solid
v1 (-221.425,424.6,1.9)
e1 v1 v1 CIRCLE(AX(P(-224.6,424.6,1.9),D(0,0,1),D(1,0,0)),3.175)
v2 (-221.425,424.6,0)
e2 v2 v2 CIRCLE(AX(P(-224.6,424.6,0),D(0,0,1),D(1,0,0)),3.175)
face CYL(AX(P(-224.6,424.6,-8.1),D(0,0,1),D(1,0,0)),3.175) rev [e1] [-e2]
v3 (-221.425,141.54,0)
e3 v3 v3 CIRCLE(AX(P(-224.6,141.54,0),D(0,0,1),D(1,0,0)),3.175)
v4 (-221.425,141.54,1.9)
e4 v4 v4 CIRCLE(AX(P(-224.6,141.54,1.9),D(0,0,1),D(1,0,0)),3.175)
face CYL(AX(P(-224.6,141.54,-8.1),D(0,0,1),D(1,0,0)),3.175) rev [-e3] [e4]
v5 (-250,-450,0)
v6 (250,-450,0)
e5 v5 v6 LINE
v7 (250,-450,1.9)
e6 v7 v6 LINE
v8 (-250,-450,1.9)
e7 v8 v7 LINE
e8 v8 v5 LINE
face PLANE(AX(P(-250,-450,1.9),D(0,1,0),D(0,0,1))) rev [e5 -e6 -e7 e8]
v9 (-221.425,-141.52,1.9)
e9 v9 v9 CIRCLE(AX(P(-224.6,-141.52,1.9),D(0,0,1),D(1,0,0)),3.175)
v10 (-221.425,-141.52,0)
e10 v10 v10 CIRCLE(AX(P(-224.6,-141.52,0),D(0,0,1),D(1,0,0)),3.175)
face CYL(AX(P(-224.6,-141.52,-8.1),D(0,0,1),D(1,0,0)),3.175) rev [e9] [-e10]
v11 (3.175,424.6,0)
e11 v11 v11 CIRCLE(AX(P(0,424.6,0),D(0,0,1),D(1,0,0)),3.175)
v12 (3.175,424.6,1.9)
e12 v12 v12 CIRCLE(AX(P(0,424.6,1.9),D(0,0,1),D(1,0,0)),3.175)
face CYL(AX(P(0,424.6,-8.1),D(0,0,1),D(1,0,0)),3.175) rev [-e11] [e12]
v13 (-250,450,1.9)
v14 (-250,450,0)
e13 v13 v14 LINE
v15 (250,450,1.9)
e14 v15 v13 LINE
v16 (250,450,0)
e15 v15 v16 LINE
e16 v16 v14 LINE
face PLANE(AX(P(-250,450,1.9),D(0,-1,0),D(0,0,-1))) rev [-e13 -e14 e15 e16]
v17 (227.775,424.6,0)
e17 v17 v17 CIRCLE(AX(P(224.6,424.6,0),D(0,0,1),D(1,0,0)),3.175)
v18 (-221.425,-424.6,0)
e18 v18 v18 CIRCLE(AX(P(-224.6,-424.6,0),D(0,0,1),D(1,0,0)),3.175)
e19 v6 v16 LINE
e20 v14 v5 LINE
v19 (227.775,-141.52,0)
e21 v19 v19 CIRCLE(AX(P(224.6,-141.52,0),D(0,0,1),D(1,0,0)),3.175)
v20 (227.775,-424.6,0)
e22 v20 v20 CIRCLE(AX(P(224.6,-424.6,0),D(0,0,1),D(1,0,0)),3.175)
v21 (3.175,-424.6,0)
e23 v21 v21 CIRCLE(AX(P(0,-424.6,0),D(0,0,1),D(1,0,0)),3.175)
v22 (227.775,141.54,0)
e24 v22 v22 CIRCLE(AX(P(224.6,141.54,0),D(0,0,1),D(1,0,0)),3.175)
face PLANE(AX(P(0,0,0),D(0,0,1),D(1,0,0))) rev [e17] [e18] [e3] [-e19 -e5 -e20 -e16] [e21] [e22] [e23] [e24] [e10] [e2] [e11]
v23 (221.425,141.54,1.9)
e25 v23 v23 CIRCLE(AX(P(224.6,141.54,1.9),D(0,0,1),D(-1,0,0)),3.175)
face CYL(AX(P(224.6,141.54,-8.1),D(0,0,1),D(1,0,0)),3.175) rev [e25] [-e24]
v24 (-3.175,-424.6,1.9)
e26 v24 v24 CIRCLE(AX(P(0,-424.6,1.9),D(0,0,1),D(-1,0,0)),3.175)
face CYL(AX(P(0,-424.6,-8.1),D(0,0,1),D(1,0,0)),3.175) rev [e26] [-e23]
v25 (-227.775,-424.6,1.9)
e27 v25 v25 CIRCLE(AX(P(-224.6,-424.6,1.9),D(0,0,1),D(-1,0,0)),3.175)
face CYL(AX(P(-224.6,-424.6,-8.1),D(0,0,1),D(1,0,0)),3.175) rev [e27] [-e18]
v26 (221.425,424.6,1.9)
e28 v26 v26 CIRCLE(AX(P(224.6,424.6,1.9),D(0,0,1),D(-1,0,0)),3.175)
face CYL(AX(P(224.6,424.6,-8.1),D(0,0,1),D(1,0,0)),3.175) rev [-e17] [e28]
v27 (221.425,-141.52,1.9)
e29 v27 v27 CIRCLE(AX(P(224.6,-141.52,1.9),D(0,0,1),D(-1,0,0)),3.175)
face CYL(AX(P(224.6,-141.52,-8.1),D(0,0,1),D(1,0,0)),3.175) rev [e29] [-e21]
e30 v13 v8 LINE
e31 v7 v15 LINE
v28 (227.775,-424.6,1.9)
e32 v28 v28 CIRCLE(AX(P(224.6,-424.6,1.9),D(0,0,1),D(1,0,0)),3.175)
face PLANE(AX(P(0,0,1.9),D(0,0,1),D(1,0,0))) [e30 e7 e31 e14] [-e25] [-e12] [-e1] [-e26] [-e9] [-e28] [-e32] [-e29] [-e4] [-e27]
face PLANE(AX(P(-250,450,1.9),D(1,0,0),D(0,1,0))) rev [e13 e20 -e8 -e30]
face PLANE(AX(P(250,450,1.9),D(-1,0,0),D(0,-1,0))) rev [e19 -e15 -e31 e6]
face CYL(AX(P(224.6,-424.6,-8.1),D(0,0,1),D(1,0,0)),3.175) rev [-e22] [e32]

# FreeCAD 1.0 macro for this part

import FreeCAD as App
import Part
import Sketcher
from FreeCAD import Vector


def add_polygon(sketch, points):
    """Adds a closed chain of lines whose ends are joined by coincident constraints."""
    first, n = sketch.GeometryCount, len(points)
    for a, b in zip(points, points[1:] + points[:1]):
        sketch.addGeometry(Part.LineSegment(App.Vector(*a, 0), App.Vector(*b, 0)), False)
    for i in range(n):
        sketch.addConstraint(Sketcher.Constraint("Coincident", first + i, 2, first + (i + 1) % n, 1))

doc = App.newDocument("Part")
body = doc.addObject("PartDesign::Body", "Body")

# Sketch on XY plane
sketch1 = doc.addObject("Sketcher::SketchObject", "Sketch")
body.addObject(sketch1)
sketch1.AttachmentSupport = (doc.XY_Plane, [""])
sketch1.MapMode = "FlatFace"
add_polygon(sketch1, [(-250, 450), (-250, -450), (250, -450), (250, 450)])  # lines 0-3
sketch1.addConstraint([
    Sketcher.Constraint("Vertical", 0),
    Sketcher.Constraint("Horizontal", 1),
    Sketcher.Constraint("Vertical", 2),
    Sketcher.Constraint("Horizontal", 3),
    Sketcher.Constraint("Symmetric", 0, 2, 2, 2, -1, 1),
    Sketcher.Constraint("DistanceX", 1, 1, 1, 2, 500.0),
    Sketcher.Constraint("DistanceY", 0, 2, 0, 1, 900.0),
])
pad1 = doc.addObject("PartDesign::Pad", "Pad")
body.addObject(pad1)
pad1.Profile = sketch1
pad1.Length = 1.9

# Sketch on XY plane
sketch2 = doc.addObject("Sketcher::SketchObject", "Sketch001")
body.addObject(sketch2)
sketch2.AttachmentSupport = (doc.XY_Plane, [""])
sketch2.MapMode = "FlatFace"
sketch2.AttachmentOffset = App.Placement(Vector(0, 0, 1.9), App.Rotation())
sketch2.addGeometry([
    Part.Circle(Vector(-224.6, 424.6, 0), Vector(0, 0, 1), 3.175),  # 0
    Part.Circle(Vector(224.6, 424.6, 0), Vector(0, 0, 1), 3.175),  # 1
    Part.Circle(Vector(224.6, -424.6, 0), Vector(0, 0, 1), 3.175),  # 2
    Part.Circle(Vector(-224.6, -424.6, 0), Vector(0, 0, 1), 3.175),  # 3
    Part.Circle(Vector(-224.6, 141.54, 0), Vector(0, 0, 1), 3.175),  # 4
    Part.Circle(Vector(-224.6, -141.52, 0), Vector(0, 0, 1), 3.175),  # 5
    Part.Circle(Vector(224.6, -141.52, 0), Vector(0, 0, 1), 3.175),  # 6
    Part.Circle(Vector(224.6, 141.54, 0), Vector(0, 0, 1), 3.175),  # 7
    Part.Circle(Vector(0, 424.6, 0), Vector(0, 0, 1), 3.175),  # 8
    Part.Circle(Vector(0, -424.6, 0), Vector(0, 0, 1), 3.175),  # 9
], False)
sketch2.addConstraint([
    Sketcher.Constraint("Equal", 0, 1),
    Sketcher.Constraint("Equal", 1, 2),
    Sketcher.Constraint("Equal", 2, 3),
    Sketcher.Constraint("Equal", 3, 4),
    Sketcher.Constraint("Equal", 4, 5),
    Sketcher.Constraint("Equal", 5, 6),
    Sketcher.Constraint("Equal", 6, 7),
    Sketcher.Constraint("Equal", 7, 8),
    Sketcher.Constraint("Equal", 8, 9),
    Sketcher.Constraint("Symmetric", 0, 3, 2, 3, -1, 1),
    Sketcher.Constraint("Symmetric", 1, 3, 3, 3, -1, 1),
    Sketcher.Constraint("Symmetric", 8, 3, 9, 3, -1, 1),
    Sketcher.Constraint("Symmetric", 0, 3, 1, 3, -2),
    Sketcher.Constraint("Symmetric", 5, 3, 6, 3, -2),
    Sketcher.Constraint("Symmetric", 4, 3, 7, 3, -2),
    Sketcher.Constraint("PointOnObject", 8, 3, -2),
    Sketcher.Constraint("Horizontal", 1, 3, 8, 3),
    Sketcher.Constraint("Vertical", 3, 3, 4, 3),
    Sketcher.Constraint("Vertical", 4, 3, 5, 3),
    Sketcher.Constraint("Diameter", 0, 6.35),
    Sketcher.Constraint("DistanceX", 0, 3, -1, 1, 224.6),
    Sketcher.Constraint("DistanceY", -1, 1, 0, 3, 424.6),
    Sketcher.Constraint("DistanceY", -1, 1, 4, 3, 141.54),
    Sketcher.Constraint("DistanceY", 5, 3, -1, 1, 141.52),
])
pocket1 = doc.addObject("PartDesign::Pocket", "Pocket")
body.addObject(pocket1)
pocket1.Profile = sketch2
pocket1.Length = 10

doc.recompute()
